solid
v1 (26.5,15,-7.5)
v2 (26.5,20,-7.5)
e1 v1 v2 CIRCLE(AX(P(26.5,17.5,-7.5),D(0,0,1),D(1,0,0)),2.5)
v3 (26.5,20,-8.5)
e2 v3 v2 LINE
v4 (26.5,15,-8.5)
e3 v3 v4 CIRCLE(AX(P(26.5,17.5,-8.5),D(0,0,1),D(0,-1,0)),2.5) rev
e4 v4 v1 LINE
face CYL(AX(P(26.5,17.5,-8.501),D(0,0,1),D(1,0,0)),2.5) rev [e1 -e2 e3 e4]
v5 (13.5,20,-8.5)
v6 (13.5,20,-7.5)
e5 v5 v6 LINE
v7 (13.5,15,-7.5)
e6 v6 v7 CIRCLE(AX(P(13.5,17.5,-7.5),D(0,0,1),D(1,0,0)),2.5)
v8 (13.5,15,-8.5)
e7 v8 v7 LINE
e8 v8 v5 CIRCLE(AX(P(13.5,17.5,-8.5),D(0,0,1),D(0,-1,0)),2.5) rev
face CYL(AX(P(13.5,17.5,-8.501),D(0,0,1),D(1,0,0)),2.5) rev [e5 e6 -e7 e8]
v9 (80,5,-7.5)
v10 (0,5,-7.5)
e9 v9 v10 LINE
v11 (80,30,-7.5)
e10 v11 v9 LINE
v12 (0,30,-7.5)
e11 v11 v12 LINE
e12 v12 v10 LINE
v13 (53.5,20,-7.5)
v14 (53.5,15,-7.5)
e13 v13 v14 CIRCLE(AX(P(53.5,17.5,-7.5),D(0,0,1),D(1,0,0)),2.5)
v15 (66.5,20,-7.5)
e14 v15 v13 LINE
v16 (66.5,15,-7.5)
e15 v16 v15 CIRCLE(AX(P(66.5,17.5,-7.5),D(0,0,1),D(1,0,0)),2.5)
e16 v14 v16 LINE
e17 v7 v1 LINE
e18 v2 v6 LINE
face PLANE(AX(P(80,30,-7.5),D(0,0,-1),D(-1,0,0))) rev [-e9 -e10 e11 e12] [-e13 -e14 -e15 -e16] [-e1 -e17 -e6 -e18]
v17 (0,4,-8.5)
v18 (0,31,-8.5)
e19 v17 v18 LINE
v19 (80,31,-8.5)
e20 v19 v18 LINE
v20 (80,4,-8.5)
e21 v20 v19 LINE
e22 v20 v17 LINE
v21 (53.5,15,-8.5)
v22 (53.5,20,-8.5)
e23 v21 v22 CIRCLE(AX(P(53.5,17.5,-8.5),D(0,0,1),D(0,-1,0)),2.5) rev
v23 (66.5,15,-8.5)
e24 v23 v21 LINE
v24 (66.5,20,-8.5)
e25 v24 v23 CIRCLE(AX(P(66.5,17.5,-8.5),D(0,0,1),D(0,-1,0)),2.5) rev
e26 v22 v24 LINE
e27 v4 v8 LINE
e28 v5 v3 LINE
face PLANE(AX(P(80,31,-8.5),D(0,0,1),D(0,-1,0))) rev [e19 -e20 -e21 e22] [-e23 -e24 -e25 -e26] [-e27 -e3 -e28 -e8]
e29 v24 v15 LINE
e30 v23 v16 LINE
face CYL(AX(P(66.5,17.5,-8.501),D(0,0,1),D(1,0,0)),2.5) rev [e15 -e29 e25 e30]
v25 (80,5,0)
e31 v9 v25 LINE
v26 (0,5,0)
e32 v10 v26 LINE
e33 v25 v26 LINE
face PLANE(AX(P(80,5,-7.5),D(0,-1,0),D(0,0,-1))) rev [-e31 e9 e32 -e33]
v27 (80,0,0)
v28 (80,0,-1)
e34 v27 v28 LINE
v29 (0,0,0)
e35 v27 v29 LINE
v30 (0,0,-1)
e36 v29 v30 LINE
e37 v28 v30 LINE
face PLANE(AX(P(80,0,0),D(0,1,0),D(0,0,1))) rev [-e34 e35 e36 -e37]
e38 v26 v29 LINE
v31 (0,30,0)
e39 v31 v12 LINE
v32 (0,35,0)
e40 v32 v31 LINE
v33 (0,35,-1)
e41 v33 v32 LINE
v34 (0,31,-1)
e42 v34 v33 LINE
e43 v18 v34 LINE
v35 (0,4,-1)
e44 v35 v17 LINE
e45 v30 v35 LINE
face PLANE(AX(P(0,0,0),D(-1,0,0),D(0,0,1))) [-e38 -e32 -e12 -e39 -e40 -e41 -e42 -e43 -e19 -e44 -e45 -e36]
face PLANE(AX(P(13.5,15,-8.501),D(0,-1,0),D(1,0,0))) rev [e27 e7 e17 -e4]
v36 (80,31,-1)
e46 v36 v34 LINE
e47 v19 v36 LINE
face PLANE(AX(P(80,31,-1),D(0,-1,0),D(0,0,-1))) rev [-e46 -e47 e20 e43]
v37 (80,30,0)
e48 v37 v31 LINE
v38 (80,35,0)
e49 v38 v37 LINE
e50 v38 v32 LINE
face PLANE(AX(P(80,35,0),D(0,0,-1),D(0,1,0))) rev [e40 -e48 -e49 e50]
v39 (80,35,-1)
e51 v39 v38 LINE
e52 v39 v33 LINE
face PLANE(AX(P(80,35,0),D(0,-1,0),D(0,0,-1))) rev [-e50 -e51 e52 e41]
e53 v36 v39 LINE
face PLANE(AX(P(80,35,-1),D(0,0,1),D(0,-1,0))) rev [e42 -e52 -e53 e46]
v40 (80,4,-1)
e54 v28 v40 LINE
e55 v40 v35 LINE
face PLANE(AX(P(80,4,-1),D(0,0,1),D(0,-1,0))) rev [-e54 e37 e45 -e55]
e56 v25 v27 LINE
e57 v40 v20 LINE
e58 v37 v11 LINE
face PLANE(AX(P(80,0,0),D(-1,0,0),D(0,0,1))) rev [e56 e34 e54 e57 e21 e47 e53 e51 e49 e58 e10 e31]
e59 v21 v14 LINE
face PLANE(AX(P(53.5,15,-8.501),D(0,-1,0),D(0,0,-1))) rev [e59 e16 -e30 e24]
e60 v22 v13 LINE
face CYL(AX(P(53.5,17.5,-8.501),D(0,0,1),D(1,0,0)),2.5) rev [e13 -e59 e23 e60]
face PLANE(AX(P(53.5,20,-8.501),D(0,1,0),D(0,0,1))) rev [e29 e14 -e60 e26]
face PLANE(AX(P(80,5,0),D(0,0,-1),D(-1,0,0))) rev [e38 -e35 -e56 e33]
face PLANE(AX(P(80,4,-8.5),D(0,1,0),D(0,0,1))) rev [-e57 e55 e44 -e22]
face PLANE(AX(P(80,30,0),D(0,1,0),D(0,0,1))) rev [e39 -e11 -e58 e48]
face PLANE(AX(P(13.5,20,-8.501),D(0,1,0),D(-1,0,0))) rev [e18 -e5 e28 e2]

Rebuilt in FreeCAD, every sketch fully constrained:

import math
import FreeCAD as App
import Part
import Sketcher
from FreeCAD import Vector
Q = App.Units.Quantity


def add_polygon(sketch, points):
    """Adds a closed chain of lines whose ends are joined by coincident constraints."""
    first, n = sketch.GeometryCount, len(points)
    for a, b in zip(points, points[1:] + points[:1]):
        sketch.addGeometry(Part.LineSegment(App.Vector(*a, 0), App.Vector(*b, 0)), False)
    for i in range(n):
        sketch.addConstraint(Sketcher.Constraint("Coincident", first + i, 2, first + (i + 1) % n, 1))

doc = App.newDocument("Part")
params = doc.addObject("Spreadsheet::Sheet", "Params")
for row, (alias, value) in enumerate([
    ("sketch1_width", "5 mm"),
    ("sketch1_width2", "25 mm"),
    ("sketch1_width3", "4 mm"),
    ("sketch1_height", "1 mm"),
    ("sketch1_height2", "7.5 mm"),
    ("pad1_length", "80 mm"),
    ("sketch2_radius", "2.5 mm"),
    ("sketch2_width", "13 mm"),
    ("sketch3_radius", "2.5 mm"),
    ("sketch3_width", "13 mm"),
], start=1):
    params.set(f"A{row}", alias)
    params.set(f"B{row}", "=" + value)
    params.setAlias(f"B{row}", alias)

body = doc.addObject("PartDesign::Body", "Body")

# Sketch on YZ plane
sketch1 = body.newObject("Sketcher::SketchObject", "Sketch")
sketch1.AttachmentSupport = (doc.getObject("YZ_Plane"), [""])
sketch1.MapMode = "FlatFace"
add_polygon(sketch1, [(35, 0), (30, 0), (30, -7.5), (5, -7.5), (5, 0), (0, 0), (0, -1), (4, -1), (4, -8.5), (31, -8.5), (31, -1), (35, -1)])  # lines 0-11
sketch1.addConstraint(Sketcher.Constraint("Horizontal", 0))
sketch1.addConstraint(Sketcher.Constraint("Vertical", 1))
sketch1.addConstraint(Sketcher.Constraint("Horizontal", 2))
sketch1.addConstraint(Sketcher.Constraint("Vertical", 3))
sketch1.addConstraint(Sketcher.Constraint("Horizontal", 4))
sketch1.addConstraint(Sketcher.Constraint("Vertical", 5))
sketch1.addConstraint(Sketcher.Constraint("Horizontal", 6))
sketch1.addConstraint(Sketcher.Constraint("Vertical", 7))
sketch1.addConstraint(Sketcher.Constraint("Horizontal", 8))
sketch1.addConstraint(Sketcher.Constraint("Vertical", 9))
sketch1.addConstraint(Sketcher.Constraint("Horizontal", 10))
sketch1.addConstraint(Sketcher.Constraint("Vertical", 11))
sketch1.addConstraint(Sketcher.Constraint("Coincident", 4, 2, -1, 1))
sketch1.addConstraint(Sketcher.Constraint("PointOnObject", 0, 2, -1))
sketch1.addConstraint(Sketcher.Constraint("Horizontal", 6, 2, 9, 2))
sketch1.addConstraint(Sketcher.Constraint("Equal", 0, 4))
sketch1.addConstraint(Sketcher.Constraint("Equal", 6, 10))
sketch1.addConstraint(Sketcher.Constraint("Equal", 3, 7))
sketch1.addConstraint(Sketcher.Constraint("DistanceX", 0, 2, 0, 1, Q("5 mm")))
sketch1.addConstraint(Sketcher.Constraint("DistanceX", 2, 2, 2, 1, Q("25 mm")))
sketch1.addConstraint(Sketcher.Constraint("DistanceX", 6, 1, 6, 2, Q("4 mm")))
sketch1.addConstraint(Sketcher.Constraint("DistanceY", 5, 2, 5, 1, Q("1 mm")))
sketch1.addConstraint(Sketcher.Constraint("DistanceY", 1, 2, 1, 1, Q("7.5 mm")))
sketch1.setExpression("Constraints[30]", "Params.sketch1_width")
sketch1.setExpression("Constraints[31]", "Params.sketch1_width2")
sketch1.setExpression("Constraints[32]", "Params.sketch1_width3")
sketch1.setExpression("Constraints[33]", "Params.sketch1_height")
sketch1.setExpression("Constraints[34]", "Params.sketch1_height2")
pad1 = body.newObject("PartDesign::Pad", "Pad")
pad1.Profile = sketch1
pad1.setExpression("Length", "Params.pad1_length")

# Sketch on XY plane
sketch2 = body.newObject("Sketcher::SketchObject", "Sketch001")
sketch2.AttachmentSupport = (doc.getObject("XY_Plane"), [""])
sketch2.MapMode = "FlatFace"
sketch2.AttachmentOffset = App.Placement(Vector(0, 0, -7.5), App.Rotation())
sketch2.addGeometry(Part.LineSegment(Vector(26.5, 20, 0), Vector(13.5, 20, 0)), False)
sketch2.addGeometry(Part.ArcOfCircle(Part.Circle(Vector(13.5, 17.5, 0), Vector(0, 0, 1), 2.5), math.radians(90), math.radians(270)), False)
sketch2.addGeometry(Part.LineSegment(Vector(13.5, 15, 0), Vector(26.5, 15, 0)), False)
sketch2.addGeometry(Part.ArcOfCircle(Part.Circle(Vector(26.5, 17.5, 0), Vector(0, 0, 1), 2.5), math.radians(-90), math.radians(90)), False)
sketch2.addConstraint(Sketcher.Constraint("Tangent", 0, 2, 1, 1))
sketch2.addConstraint(Sketcher.Constraint("Tangent", 1, 2, 2, 1))
sketch2.addConstraint(Sketcher.Constraint("Tangent", 2, 2, 3, 1))
sketch2.addConstraint(Sketcher.Constraint("Tangent", 3, 2, 0, 1))
sketch2.addConstraint(Sketcher.Constraint("Horizontal", 0))
sketch2.addConstraint(Sketcher.Constraint("Horizontal", 2))
sketch2.addConstraint(Sketcher.Constraint("Radius", 1, Q("2.5 mm")))
sketch2.addConstraint(Sketcher.Constraint("DistanceX", 0, 2, 0, 1, Q("13 mm")))
sketch2.addConstraint(Sketcher.Constraint("DistanceY", -1, 1, 0, 2, Q("20 mm")))
sketch2.addConstraint(Sketcher.Constraint("DistanceX", -1, 1, 1, 3, Q("13.5 mm")))
sketch2.setExpression("Constraints[6]", "Params.sketch2_radius")
sketch2.setExpression("Constraints[7]", "Params.sketch2_width")
pocket1 = body.newObject("PartDesign::Pocket", "Pocket")
pocket1.Profile = sketch2
pocket1.Type = "UpToFirst"

# Sketch on XY plane
sketch3 = body.newObject("Sketcher::SketchObject", "Sketch002")
sketch3.AttachmentSupport = (doc.getObject("XY_Plane"), [""])
sketch3.MapMode = "FlatFace"
sketch3.AttachmentOffset = App.Placement(Vector(0, 0, -7.5), App.Rotation())
sketch3.addGeometry(Part.LineSegment(Vector(66.5, 20, 0), Vector(53.5, 20, 0)), False)
sketch3.addGeometry(Part.ArcOfCircle(Part.Circle(Vector(53.5, 17.5, 0), Vector(0, 0, 1), 2.5), math.radians(90), math.radians(270)), False)
sketch3.addGeometry(Part.LineSegment(Vector(53.5, 15, 0), Vector(66.5, 15, 0)), False)
sketch3.addGeometry(Part.ArcOfCircle(Part.Circle(Vector(66.5, 17.5, 0), Vector(0, 0, 1), 2.5), math.radians(-90), math.radians(90)), False)
sketch3.addConstraint(Sketcher.Constraint("Tangent", 0, 2, 1, 1))
sketch3.addConstraint(Sketcher.Constraint("Tangent", 1, 2, 2, 1))
sketch3.addConstraint(Sketcher.Constraint("Tangent", 2, 2, 3, 1))
sketch3.addConstraint(Sketcher.Constraint("Tangent", 3, 2, 0, 1))
sketch3.addConstraint(Sketcher.Constraint("Horizontal", 0))
sketch3.addConstraint(Sketcher.Constraint("Horizontal", 2))
sketch3.addConstraint(Sketcher.Constraint("Radius", 1, Q("2.5 mm")))
sketch3.addConstraint(Sketcher.Constraint("DistanceX", 0, 2, 0, 1, Q("13 mm")))
sketch3.addConstraint(Sketcher.Constraint("DistanceY", -1, 1, 0, 2, Q("20 mm")))
sketch3.addConstraint(Sketcher.Constraint("DistanceX", -1, 1, 1, 3, Q("53.5 mm")))
sketch3.setExpression("Constraints[6]", "Params.sketch3_radius")
sketch3.setExpression("Constraints[7]", "Params.sketch3_width")
pocket2 = body.newObject("PartDesign::Pocket", "Pocket001")
pocket2.Profile = sketch3
pocket2.Type = "UpToFirst"

doc.recompute()
